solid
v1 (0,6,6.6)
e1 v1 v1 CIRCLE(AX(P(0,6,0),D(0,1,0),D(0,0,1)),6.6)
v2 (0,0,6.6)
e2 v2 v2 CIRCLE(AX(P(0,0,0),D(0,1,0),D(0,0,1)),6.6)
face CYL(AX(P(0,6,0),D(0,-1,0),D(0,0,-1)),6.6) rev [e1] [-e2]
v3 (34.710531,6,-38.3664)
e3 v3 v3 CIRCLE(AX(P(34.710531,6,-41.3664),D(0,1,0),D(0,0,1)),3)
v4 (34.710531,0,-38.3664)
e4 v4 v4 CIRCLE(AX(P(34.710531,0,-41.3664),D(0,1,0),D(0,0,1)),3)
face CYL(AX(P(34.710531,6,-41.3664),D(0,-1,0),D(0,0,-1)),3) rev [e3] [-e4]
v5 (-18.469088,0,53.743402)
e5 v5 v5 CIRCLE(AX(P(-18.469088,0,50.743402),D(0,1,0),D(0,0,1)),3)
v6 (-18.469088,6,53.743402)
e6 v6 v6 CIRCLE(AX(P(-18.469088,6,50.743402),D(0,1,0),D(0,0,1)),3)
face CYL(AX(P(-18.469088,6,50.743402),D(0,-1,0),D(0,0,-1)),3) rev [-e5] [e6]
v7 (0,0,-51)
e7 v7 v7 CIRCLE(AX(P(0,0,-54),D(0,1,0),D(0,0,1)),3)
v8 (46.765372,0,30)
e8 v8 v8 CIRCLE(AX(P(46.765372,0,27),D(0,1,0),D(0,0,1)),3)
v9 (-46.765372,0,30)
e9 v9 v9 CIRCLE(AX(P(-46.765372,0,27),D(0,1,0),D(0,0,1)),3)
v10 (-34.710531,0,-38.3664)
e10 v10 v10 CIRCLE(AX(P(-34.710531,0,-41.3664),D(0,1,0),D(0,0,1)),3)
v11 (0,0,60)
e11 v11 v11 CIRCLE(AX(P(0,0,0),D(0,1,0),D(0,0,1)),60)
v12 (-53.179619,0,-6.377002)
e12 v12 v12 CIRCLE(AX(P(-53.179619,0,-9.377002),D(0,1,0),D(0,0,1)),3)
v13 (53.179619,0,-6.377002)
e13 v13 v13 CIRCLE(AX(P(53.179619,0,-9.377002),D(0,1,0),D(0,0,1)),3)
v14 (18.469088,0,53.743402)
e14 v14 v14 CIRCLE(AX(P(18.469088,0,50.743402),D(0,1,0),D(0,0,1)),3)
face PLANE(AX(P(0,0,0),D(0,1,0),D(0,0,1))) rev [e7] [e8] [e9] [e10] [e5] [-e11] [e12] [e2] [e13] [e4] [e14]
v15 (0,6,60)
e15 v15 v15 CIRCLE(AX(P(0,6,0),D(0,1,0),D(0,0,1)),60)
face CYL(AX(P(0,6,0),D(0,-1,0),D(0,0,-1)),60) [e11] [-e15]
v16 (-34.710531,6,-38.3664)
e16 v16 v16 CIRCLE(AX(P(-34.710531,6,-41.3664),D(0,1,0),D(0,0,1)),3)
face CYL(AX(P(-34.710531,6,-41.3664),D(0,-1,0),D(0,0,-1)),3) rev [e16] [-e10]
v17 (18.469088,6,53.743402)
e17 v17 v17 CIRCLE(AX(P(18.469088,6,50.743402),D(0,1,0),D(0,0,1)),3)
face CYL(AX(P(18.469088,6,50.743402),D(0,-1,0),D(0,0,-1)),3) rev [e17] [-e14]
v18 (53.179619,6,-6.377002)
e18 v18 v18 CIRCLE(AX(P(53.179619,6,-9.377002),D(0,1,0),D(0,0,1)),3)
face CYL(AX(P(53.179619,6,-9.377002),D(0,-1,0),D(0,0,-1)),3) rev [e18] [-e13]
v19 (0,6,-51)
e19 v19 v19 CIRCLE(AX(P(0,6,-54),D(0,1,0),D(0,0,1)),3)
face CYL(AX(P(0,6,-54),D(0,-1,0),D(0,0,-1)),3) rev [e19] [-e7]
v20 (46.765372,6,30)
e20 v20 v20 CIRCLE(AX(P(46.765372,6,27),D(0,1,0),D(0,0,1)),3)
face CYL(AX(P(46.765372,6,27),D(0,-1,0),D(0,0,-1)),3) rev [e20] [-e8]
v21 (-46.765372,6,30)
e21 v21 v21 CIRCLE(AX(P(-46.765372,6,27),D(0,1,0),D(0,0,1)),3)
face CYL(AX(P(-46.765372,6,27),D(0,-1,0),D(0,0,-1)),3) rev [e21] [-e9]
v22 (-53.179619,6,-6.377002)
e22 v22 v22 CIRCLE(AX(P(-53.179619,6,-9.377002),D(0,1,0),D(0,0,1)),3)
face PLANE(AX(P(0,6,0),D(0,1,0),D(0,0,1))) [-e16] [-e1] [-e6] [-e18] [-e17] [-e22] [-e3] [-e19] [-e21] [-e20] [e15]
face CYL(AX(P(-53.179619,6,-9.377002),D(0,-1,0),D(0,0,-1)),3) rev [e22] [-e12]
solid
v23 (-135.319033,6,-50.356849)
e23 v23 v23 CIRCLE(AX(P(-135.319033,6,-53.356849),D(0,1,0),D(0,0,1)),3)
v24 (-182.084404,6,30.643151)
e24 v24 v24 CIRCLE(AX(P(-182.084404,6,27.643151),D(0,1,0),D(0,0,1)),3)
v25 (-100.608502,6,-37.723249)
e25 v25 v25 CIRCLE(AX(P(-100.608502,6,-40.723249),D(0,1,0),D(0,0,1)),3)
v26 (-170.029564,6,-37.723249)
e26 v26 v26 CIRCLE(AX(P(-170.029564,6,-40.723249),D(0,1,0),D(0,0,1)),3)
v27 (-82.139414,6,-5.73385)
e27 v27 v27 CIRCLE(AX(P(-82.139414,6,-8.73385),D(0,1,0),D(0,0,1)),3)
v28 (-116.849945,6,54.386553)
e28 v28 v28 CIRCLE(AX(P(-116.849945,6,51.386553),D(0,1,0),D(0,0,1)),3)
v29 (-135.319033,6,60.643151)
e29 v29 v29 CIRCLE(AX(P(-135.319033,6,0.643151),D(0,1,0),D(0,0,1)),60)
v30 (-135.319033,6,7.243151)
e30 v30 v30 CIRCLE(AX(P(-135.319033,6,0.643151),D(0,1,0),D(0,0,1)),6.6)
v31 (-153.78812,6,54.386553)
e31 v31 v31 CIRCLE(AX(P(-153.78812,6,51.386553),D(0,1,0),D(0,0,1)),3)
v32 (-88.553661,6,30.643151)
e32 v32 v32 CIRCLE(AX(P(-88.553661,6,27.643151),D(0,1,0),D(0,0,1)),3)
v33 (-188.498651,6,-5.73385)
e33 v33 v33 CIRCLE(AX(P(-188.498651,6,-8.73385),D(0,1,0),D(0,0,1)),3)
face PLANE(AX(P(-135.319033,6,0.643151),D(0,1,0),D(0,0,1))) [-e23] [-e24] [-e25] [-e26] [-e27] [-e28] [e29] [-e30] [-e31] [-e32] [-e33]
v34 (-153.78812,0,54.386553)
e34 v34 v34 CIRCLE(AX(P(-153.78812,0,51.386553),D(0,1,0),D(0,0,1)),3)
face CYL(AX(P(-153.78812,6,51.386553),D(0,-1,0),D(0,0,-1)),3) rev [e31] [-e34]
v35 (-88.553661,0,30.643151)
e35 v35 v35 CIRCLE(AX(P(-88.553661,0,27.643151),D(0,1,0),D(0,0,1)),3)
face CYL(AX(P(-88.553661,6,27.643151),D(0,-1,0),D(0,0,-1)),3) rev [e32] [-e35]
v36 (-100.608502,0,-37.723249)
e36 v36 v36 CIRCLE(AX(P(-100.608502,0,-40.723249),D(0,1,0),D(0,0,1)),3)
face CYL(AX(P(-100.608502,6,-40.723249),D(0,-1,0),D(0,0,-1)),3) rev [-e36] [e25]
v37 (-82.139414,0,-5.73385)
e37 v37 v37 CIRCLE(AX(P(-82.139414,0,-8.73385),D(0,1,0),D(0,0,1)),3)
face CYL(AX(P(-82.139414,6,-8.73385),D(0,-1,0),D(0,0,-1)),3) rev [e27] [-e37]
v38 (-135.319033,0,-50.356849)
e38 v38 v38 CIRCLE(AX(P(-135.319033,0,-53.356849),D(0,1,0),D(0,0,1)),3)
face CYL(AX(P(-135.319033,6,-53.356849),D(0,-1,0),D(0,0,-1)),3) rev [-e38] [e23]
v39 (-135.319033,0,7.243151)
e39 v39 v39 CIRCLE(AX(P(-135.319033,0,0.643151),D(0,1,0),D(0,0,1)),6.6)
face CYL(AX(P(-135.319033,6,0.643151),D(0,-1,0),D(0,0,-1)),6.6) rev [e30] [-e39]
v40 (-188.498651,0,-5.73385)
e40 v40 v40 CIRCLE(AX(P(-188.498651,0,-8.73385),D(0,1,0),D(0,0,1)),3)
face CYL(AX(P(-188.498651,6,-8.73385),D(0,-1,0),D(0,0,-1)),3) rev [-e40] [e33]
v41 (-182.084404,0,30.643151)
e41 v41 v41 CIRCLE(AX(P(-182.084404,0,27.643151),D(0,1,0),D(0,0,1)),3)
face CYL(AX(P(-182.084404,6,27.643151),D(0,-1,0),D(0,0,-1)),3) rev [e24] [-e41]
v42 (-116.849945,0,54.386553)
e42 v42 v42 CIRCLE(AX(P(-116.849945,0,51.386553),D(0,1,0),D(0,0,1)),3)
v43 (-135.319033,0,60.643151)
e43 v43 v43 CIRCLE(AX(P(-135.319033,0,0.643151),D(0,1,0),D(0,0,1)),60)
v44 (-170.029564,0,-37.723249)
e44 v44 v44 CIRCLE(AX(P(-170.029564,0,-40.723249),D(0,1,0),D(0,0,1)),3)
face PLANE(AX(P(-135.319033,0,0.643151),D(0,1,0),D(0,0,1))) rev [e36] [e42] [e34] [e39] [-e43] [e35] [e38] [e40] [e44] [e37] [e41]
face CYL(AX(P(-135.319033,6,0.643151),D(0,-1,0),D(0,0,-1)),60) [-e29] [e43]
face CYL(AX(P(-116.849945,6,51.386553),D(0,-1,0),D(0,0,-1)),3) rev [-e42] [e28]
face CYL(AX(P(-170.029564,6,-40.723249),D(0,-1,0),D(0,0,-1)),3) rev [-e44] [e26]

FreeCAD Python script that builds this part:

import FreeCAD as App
import Part
import Sketcher
from FreeCAD import Vector

doc = App.newDocument("Part")
body = doc.addObject("PartDesign::Body", "Body")

# Sketch on XZ plane
sketch1 = body.newObject("Sketcher::SketchObject", "Sketch")
sketch1.AttachmentSupport = (doc.getObject("XZ_Plane"), [""])
sketch1.MapMode = "FlatFace"
sketch1.addGeometry(Part.Circle(Vector(0, 0, 0), Vector(0, 0, 1), 60), False)
sketch1.addGeometry(Part.Circle(Vector(-46.8, 27, 0), Vector(0, 0, 1), 3), False)
sketch1.addGeometry(Part.Circle(Vector(-18.5, 50.7, 0), Vector(0, 0, 1), 3), False)
sketch1.addGeometry(Part.Circle(Vector(18.5, 50.7, 0), Vector(0, 0, 1), 3), False)
sketch1.addGeometry(Part.Circle(Vector(46.8, 27, 0), Vector(0, 0, 1), 3), False)
sketch1.addGeometry(Part.Circle(Vector(0, 0, 0), Vector(0, 0, 1), 6.6), False)
sketch1.addGeometry(Part.Circle(Vector(-53.2, -9.4, 0), Vector(0, 0, 1), 3), False)
sketch1.addGeometry(Part.Circle(Vector(-34.7, -41.4, 0), Vector(0, 0, 1), 3), False)
sketch1.addGeometry(Part.Circle(Vector(53.2, -9.4, 0), Vector(0, 0, 1), 3), False)
sketch1.addGeometry(Part.Circle(Vector(0, -54, 0), Vector(0, 0, 1), 3), False)
sketch1.addGeometry(Part.Circle(Vector(34.7, -41.4, 0), Vector(0, 0, 1), 3), False)
sketch1.addConstraint(Sketcher.Constraint("Coincident", 0, 3, -1, 1))
sketch1.addConstraint(Sketcher.Constraint("Coincident", 5, 3, -1, 1))
sketch1.addConstraint(Sketcher.Constraint("Equal", 1, 2))
sketch1.addConstraint(Sketcher.Constraint("Equal", 2, 3))
sketch1.addConstraint(Sketcher.Constraint("Equal", 3, 4))
sketch1.addConstraint(Sketcher.Constraint("Equal", 4, 6))
sketch1.addConstraint(Sketcher.Constraint("Equal", 6, 7))
sketch1.addConstraint(Sketcher.Constraint("Equal", 7, 8))
sketch1.addConstraint(Sketcher.Constraint("Equal", 8, 9))
sketch1.addConstraint(Sketcher.Constraint("Equal", 9, 10))
sketch1.addConstraint(Sketcher.Constraint("Symmetric", 2, 3, 3, 3, -2))
sketch1.addConstraint(Sketcher.Constraint("Symmetric", 1, 3, 4, 3, -2))
sketch1.addConstraint(Sketcher.Constraint("Symmetric", 6, 3, 8, 3, -2))
sketch1.addConstraint(Sketcher.Constraint("Symmetric", 7, 3, 10, 3, -2))
sketch1.addConstraint(Sketcher.Constraint("PointOnObject", 9, 3, -2))
sketch1.addConstraint(Sketcher.Constraint("Diameter", 0, 120.0))
sketch1.addConstraint(Sketcher.Constraint("Diameter", 1, 6.0))
sketch1.addConstraint(Sketcher.Constraint("Diameter", 5, 13.2))
sketch1.addConstraint(Sketcher.Constraint("DistanceY", -1, 1, 1, 3, 27.0))
sketch1.addConstraint(Sketcher.Constraint("DistanceY", 9, 3, -1, 1, 54.0))
sketch1.addConstraint(Sketcher.Constraint("DistanceY", 6, 3, -1, 1, 9.377002))
sketch1.addConstraint(Sketcher.Constraint("DistanceY", -1, 1, 2, 3, 50.743402))
sketch1.addConstraint(Sketcher.Constraint("DistanceY", 7, 3, -1, 1, 41.3664))
sketch1.addConstraint(Sketcher.Constraint("DistanceX", 1, 3, -1, 1, 46.765372))
sketch1.addConstraint(Sketcher.Constraint("DistanceX", 6, 3, -1, 1, 53.179619))
sketch1.addConstraint(Sketcher.Constraint("DistanceX", 7, 3, -1, 1, 34.710531))
sketch1.addConstraint(Sketcher.Constraint("DistanceX", 1, 3, 3, 3, 65.23446))
pad1 = body.newObject("PartDesign::Pad", "Pad")
pad1.Profile = sketch1
pad1.Length = 6
pad1.Reversed = True
body2 = doc.addObject("PartDesign::Body", "Body001")

# Sketch on XZ plane
sketch2 = body2.newObject("Sketcher::SketchObject", "Sketch001")
sketch2.AttachmentSupport = (doc.getObject("XZ_Plane001"), [""])
sketch2.MapMode = "FlatFace"
sketch2.addGeometry(Part.Circle(Vector(-135.3, 0.6, 0), Vector(0, 0, 1), 60), False)
sketch2.addGeometry(Part.Circle(Vector(-182.1, 27.6, 0), Vector(0, 0, 1), 3), False)
sketch2.addGeometry(Part.Circle(Vector(-153.8, 51.4, 0), Vector(0, 0, 1), 3), False)
sketch2.addGeometry(Part.Circle(Vector(-116.8, 51.4, 0), Vector(0, 0, 1), 3), False)
sketch2.addGeometry(Part.Circle(Vector(-88.6, 27.6, 0), Vector(0, 0, 1), 3), False)
sketch2.addGeometry(Part.Circle(Vector(-135.3, 0.6, 0), Vector(0, 0, 1), 6.6), False)
sketch2.addGeometry(Part.Circle(Vector(-188.5, -8.7, 0), Vector(0, 0, 1), 3), False)
sketch2.addGeometry(Part.Circle(Vector(-170, -40.7, 0), Vector(0, 0, 1), 3), False)
sketch2.addGeometry(Part.Circle(Vector(-82.1, -8.7, 0), Vector(0, 0, 1), 3), False)
sketch2.addGeometry(Part.Circle(Vector(-135.3, -53.4, 0), Vector(0, 0, 1), 3), False)
sketch2.addGeometry(Part.Circle(Vector(-100.6, -40.7, 0), Vector(0, 0, 1), 3), False)
sketch2.addConstraint(Sketcher.Constraint("Coincident", 5, 3, 0, 3))
sketch2.addConstraint(Sketcher.Constraint("Equal", 1, 2))
sketch2.addConstraint(Sketcher.Constraint("Equal", 2, 3))
sketch2.addConstraint(Sketcher.Constraint("Equal", 3, 4))
sketch2.addConstraint(Sketcher.Constraint("Equal", 4, 6))
sketch2.addConstraint(Sketcher.Constraint("Equal", 6, 7))
sketch2.addConstraint(Sketcher.Constraint("Equal", 7, 8))
sketch2.addConstraint(Sketcher.Constraint("Equal", 8, 9))
sketch2.addConstraint(Sketcher.Constraint("Equal", 9, 10))
sketch2.addConstraint(Sketcher.Constraint("Horizontal", 2, 3, 3, 3))
sketch2.addConstraint(Sketcher.Constraint("Horizontal", 1, 3, 4, 3))
sketch2.addConstraint(Sketcher.Constraint("Horizontal", 6, 3, 8, 3))
sketch2.addConstraint(Sketcher.Constraint("Horizontal", 7, 3, 10, 3))
sketch2.addConstraint(Sketcher.Constraint("Vertical", 5, 3, 9, 3))
sketch2.addConstraint(Sketcher.Constraint("Diameter", 0, 120.0))
sketch2.addConstraint(Sketcher.Constraint("Diameter", 1, 6.0))
sketch2.addConstraint(Sketcher.Constraint("Diameter", 5, 13.2))
sketch2.addConstraint(Sketcher.Constraint("DistanceY", 0, 3, 1, 3, 27.0))
sketch2.addConstraint(Sketcher.Constraint("DistanceY", 9, 3, 0, 3, 54.0))
sketch2.addConstraint(Sketcher.Constraint("DistanceY", 6, 3, 1, 3, 36.377002))
sketch2.addConstraint(Sketcher.Constraint("DistanceX", 10, 3, -1, 1, 100.608502))
sketch2.addConstraint(Sketcher.Constraint("DistanceY", 1, 3, 2, 3, 23.743402))
sketch2.addConstraint(Sketcher.Constraint("DistanceY", 7, 3, 6, 3, 31.989398))
sketch2.addConstraint(Sketcher.Constraint("DistanceY", -1, 1, 0, 3, 0.643151))
sketch2.addConstraint(Sketcher.Constraint("DistanceX", 2, 3, -1, 1, 153.78812))
sketch2.addConstraint(Sketcher.Constraint("DistanceX", 4, 3, -1, 1, 88.553661))
sketch2.addConstraint(Sketcher.Constraint("DistanceX", 6, 3, -1, 1, 188.498651))
sketch2.addConstraint(Sketcher.Constraint("DistanceX", 1, 3, 0, 3, 46.765372))
sketch2.addConstraint(Sketcher.Constraint("DistanceX", 1, 3, 3, 3, 65.23446))
sketch2.addConstraint(Sketcher.Constraint("DistanceX", 0, 3, 4, 3, 46.765372))
sketch2.addConstraint(Sketcher.Constraint("DistanceX", 7, 3, 0, 3, 34.710531))
sketch2.addConstraint(Sketcher.Constraint("DistanceX", 0, 3, 8, 3, 53.179619))
pad2 = body2.newObject("PartDesign::Pad", "Pad001")
pad2.Profile = sketch2
pad2.Length = 6
pad2.Reversed = True

doc.recompute()
